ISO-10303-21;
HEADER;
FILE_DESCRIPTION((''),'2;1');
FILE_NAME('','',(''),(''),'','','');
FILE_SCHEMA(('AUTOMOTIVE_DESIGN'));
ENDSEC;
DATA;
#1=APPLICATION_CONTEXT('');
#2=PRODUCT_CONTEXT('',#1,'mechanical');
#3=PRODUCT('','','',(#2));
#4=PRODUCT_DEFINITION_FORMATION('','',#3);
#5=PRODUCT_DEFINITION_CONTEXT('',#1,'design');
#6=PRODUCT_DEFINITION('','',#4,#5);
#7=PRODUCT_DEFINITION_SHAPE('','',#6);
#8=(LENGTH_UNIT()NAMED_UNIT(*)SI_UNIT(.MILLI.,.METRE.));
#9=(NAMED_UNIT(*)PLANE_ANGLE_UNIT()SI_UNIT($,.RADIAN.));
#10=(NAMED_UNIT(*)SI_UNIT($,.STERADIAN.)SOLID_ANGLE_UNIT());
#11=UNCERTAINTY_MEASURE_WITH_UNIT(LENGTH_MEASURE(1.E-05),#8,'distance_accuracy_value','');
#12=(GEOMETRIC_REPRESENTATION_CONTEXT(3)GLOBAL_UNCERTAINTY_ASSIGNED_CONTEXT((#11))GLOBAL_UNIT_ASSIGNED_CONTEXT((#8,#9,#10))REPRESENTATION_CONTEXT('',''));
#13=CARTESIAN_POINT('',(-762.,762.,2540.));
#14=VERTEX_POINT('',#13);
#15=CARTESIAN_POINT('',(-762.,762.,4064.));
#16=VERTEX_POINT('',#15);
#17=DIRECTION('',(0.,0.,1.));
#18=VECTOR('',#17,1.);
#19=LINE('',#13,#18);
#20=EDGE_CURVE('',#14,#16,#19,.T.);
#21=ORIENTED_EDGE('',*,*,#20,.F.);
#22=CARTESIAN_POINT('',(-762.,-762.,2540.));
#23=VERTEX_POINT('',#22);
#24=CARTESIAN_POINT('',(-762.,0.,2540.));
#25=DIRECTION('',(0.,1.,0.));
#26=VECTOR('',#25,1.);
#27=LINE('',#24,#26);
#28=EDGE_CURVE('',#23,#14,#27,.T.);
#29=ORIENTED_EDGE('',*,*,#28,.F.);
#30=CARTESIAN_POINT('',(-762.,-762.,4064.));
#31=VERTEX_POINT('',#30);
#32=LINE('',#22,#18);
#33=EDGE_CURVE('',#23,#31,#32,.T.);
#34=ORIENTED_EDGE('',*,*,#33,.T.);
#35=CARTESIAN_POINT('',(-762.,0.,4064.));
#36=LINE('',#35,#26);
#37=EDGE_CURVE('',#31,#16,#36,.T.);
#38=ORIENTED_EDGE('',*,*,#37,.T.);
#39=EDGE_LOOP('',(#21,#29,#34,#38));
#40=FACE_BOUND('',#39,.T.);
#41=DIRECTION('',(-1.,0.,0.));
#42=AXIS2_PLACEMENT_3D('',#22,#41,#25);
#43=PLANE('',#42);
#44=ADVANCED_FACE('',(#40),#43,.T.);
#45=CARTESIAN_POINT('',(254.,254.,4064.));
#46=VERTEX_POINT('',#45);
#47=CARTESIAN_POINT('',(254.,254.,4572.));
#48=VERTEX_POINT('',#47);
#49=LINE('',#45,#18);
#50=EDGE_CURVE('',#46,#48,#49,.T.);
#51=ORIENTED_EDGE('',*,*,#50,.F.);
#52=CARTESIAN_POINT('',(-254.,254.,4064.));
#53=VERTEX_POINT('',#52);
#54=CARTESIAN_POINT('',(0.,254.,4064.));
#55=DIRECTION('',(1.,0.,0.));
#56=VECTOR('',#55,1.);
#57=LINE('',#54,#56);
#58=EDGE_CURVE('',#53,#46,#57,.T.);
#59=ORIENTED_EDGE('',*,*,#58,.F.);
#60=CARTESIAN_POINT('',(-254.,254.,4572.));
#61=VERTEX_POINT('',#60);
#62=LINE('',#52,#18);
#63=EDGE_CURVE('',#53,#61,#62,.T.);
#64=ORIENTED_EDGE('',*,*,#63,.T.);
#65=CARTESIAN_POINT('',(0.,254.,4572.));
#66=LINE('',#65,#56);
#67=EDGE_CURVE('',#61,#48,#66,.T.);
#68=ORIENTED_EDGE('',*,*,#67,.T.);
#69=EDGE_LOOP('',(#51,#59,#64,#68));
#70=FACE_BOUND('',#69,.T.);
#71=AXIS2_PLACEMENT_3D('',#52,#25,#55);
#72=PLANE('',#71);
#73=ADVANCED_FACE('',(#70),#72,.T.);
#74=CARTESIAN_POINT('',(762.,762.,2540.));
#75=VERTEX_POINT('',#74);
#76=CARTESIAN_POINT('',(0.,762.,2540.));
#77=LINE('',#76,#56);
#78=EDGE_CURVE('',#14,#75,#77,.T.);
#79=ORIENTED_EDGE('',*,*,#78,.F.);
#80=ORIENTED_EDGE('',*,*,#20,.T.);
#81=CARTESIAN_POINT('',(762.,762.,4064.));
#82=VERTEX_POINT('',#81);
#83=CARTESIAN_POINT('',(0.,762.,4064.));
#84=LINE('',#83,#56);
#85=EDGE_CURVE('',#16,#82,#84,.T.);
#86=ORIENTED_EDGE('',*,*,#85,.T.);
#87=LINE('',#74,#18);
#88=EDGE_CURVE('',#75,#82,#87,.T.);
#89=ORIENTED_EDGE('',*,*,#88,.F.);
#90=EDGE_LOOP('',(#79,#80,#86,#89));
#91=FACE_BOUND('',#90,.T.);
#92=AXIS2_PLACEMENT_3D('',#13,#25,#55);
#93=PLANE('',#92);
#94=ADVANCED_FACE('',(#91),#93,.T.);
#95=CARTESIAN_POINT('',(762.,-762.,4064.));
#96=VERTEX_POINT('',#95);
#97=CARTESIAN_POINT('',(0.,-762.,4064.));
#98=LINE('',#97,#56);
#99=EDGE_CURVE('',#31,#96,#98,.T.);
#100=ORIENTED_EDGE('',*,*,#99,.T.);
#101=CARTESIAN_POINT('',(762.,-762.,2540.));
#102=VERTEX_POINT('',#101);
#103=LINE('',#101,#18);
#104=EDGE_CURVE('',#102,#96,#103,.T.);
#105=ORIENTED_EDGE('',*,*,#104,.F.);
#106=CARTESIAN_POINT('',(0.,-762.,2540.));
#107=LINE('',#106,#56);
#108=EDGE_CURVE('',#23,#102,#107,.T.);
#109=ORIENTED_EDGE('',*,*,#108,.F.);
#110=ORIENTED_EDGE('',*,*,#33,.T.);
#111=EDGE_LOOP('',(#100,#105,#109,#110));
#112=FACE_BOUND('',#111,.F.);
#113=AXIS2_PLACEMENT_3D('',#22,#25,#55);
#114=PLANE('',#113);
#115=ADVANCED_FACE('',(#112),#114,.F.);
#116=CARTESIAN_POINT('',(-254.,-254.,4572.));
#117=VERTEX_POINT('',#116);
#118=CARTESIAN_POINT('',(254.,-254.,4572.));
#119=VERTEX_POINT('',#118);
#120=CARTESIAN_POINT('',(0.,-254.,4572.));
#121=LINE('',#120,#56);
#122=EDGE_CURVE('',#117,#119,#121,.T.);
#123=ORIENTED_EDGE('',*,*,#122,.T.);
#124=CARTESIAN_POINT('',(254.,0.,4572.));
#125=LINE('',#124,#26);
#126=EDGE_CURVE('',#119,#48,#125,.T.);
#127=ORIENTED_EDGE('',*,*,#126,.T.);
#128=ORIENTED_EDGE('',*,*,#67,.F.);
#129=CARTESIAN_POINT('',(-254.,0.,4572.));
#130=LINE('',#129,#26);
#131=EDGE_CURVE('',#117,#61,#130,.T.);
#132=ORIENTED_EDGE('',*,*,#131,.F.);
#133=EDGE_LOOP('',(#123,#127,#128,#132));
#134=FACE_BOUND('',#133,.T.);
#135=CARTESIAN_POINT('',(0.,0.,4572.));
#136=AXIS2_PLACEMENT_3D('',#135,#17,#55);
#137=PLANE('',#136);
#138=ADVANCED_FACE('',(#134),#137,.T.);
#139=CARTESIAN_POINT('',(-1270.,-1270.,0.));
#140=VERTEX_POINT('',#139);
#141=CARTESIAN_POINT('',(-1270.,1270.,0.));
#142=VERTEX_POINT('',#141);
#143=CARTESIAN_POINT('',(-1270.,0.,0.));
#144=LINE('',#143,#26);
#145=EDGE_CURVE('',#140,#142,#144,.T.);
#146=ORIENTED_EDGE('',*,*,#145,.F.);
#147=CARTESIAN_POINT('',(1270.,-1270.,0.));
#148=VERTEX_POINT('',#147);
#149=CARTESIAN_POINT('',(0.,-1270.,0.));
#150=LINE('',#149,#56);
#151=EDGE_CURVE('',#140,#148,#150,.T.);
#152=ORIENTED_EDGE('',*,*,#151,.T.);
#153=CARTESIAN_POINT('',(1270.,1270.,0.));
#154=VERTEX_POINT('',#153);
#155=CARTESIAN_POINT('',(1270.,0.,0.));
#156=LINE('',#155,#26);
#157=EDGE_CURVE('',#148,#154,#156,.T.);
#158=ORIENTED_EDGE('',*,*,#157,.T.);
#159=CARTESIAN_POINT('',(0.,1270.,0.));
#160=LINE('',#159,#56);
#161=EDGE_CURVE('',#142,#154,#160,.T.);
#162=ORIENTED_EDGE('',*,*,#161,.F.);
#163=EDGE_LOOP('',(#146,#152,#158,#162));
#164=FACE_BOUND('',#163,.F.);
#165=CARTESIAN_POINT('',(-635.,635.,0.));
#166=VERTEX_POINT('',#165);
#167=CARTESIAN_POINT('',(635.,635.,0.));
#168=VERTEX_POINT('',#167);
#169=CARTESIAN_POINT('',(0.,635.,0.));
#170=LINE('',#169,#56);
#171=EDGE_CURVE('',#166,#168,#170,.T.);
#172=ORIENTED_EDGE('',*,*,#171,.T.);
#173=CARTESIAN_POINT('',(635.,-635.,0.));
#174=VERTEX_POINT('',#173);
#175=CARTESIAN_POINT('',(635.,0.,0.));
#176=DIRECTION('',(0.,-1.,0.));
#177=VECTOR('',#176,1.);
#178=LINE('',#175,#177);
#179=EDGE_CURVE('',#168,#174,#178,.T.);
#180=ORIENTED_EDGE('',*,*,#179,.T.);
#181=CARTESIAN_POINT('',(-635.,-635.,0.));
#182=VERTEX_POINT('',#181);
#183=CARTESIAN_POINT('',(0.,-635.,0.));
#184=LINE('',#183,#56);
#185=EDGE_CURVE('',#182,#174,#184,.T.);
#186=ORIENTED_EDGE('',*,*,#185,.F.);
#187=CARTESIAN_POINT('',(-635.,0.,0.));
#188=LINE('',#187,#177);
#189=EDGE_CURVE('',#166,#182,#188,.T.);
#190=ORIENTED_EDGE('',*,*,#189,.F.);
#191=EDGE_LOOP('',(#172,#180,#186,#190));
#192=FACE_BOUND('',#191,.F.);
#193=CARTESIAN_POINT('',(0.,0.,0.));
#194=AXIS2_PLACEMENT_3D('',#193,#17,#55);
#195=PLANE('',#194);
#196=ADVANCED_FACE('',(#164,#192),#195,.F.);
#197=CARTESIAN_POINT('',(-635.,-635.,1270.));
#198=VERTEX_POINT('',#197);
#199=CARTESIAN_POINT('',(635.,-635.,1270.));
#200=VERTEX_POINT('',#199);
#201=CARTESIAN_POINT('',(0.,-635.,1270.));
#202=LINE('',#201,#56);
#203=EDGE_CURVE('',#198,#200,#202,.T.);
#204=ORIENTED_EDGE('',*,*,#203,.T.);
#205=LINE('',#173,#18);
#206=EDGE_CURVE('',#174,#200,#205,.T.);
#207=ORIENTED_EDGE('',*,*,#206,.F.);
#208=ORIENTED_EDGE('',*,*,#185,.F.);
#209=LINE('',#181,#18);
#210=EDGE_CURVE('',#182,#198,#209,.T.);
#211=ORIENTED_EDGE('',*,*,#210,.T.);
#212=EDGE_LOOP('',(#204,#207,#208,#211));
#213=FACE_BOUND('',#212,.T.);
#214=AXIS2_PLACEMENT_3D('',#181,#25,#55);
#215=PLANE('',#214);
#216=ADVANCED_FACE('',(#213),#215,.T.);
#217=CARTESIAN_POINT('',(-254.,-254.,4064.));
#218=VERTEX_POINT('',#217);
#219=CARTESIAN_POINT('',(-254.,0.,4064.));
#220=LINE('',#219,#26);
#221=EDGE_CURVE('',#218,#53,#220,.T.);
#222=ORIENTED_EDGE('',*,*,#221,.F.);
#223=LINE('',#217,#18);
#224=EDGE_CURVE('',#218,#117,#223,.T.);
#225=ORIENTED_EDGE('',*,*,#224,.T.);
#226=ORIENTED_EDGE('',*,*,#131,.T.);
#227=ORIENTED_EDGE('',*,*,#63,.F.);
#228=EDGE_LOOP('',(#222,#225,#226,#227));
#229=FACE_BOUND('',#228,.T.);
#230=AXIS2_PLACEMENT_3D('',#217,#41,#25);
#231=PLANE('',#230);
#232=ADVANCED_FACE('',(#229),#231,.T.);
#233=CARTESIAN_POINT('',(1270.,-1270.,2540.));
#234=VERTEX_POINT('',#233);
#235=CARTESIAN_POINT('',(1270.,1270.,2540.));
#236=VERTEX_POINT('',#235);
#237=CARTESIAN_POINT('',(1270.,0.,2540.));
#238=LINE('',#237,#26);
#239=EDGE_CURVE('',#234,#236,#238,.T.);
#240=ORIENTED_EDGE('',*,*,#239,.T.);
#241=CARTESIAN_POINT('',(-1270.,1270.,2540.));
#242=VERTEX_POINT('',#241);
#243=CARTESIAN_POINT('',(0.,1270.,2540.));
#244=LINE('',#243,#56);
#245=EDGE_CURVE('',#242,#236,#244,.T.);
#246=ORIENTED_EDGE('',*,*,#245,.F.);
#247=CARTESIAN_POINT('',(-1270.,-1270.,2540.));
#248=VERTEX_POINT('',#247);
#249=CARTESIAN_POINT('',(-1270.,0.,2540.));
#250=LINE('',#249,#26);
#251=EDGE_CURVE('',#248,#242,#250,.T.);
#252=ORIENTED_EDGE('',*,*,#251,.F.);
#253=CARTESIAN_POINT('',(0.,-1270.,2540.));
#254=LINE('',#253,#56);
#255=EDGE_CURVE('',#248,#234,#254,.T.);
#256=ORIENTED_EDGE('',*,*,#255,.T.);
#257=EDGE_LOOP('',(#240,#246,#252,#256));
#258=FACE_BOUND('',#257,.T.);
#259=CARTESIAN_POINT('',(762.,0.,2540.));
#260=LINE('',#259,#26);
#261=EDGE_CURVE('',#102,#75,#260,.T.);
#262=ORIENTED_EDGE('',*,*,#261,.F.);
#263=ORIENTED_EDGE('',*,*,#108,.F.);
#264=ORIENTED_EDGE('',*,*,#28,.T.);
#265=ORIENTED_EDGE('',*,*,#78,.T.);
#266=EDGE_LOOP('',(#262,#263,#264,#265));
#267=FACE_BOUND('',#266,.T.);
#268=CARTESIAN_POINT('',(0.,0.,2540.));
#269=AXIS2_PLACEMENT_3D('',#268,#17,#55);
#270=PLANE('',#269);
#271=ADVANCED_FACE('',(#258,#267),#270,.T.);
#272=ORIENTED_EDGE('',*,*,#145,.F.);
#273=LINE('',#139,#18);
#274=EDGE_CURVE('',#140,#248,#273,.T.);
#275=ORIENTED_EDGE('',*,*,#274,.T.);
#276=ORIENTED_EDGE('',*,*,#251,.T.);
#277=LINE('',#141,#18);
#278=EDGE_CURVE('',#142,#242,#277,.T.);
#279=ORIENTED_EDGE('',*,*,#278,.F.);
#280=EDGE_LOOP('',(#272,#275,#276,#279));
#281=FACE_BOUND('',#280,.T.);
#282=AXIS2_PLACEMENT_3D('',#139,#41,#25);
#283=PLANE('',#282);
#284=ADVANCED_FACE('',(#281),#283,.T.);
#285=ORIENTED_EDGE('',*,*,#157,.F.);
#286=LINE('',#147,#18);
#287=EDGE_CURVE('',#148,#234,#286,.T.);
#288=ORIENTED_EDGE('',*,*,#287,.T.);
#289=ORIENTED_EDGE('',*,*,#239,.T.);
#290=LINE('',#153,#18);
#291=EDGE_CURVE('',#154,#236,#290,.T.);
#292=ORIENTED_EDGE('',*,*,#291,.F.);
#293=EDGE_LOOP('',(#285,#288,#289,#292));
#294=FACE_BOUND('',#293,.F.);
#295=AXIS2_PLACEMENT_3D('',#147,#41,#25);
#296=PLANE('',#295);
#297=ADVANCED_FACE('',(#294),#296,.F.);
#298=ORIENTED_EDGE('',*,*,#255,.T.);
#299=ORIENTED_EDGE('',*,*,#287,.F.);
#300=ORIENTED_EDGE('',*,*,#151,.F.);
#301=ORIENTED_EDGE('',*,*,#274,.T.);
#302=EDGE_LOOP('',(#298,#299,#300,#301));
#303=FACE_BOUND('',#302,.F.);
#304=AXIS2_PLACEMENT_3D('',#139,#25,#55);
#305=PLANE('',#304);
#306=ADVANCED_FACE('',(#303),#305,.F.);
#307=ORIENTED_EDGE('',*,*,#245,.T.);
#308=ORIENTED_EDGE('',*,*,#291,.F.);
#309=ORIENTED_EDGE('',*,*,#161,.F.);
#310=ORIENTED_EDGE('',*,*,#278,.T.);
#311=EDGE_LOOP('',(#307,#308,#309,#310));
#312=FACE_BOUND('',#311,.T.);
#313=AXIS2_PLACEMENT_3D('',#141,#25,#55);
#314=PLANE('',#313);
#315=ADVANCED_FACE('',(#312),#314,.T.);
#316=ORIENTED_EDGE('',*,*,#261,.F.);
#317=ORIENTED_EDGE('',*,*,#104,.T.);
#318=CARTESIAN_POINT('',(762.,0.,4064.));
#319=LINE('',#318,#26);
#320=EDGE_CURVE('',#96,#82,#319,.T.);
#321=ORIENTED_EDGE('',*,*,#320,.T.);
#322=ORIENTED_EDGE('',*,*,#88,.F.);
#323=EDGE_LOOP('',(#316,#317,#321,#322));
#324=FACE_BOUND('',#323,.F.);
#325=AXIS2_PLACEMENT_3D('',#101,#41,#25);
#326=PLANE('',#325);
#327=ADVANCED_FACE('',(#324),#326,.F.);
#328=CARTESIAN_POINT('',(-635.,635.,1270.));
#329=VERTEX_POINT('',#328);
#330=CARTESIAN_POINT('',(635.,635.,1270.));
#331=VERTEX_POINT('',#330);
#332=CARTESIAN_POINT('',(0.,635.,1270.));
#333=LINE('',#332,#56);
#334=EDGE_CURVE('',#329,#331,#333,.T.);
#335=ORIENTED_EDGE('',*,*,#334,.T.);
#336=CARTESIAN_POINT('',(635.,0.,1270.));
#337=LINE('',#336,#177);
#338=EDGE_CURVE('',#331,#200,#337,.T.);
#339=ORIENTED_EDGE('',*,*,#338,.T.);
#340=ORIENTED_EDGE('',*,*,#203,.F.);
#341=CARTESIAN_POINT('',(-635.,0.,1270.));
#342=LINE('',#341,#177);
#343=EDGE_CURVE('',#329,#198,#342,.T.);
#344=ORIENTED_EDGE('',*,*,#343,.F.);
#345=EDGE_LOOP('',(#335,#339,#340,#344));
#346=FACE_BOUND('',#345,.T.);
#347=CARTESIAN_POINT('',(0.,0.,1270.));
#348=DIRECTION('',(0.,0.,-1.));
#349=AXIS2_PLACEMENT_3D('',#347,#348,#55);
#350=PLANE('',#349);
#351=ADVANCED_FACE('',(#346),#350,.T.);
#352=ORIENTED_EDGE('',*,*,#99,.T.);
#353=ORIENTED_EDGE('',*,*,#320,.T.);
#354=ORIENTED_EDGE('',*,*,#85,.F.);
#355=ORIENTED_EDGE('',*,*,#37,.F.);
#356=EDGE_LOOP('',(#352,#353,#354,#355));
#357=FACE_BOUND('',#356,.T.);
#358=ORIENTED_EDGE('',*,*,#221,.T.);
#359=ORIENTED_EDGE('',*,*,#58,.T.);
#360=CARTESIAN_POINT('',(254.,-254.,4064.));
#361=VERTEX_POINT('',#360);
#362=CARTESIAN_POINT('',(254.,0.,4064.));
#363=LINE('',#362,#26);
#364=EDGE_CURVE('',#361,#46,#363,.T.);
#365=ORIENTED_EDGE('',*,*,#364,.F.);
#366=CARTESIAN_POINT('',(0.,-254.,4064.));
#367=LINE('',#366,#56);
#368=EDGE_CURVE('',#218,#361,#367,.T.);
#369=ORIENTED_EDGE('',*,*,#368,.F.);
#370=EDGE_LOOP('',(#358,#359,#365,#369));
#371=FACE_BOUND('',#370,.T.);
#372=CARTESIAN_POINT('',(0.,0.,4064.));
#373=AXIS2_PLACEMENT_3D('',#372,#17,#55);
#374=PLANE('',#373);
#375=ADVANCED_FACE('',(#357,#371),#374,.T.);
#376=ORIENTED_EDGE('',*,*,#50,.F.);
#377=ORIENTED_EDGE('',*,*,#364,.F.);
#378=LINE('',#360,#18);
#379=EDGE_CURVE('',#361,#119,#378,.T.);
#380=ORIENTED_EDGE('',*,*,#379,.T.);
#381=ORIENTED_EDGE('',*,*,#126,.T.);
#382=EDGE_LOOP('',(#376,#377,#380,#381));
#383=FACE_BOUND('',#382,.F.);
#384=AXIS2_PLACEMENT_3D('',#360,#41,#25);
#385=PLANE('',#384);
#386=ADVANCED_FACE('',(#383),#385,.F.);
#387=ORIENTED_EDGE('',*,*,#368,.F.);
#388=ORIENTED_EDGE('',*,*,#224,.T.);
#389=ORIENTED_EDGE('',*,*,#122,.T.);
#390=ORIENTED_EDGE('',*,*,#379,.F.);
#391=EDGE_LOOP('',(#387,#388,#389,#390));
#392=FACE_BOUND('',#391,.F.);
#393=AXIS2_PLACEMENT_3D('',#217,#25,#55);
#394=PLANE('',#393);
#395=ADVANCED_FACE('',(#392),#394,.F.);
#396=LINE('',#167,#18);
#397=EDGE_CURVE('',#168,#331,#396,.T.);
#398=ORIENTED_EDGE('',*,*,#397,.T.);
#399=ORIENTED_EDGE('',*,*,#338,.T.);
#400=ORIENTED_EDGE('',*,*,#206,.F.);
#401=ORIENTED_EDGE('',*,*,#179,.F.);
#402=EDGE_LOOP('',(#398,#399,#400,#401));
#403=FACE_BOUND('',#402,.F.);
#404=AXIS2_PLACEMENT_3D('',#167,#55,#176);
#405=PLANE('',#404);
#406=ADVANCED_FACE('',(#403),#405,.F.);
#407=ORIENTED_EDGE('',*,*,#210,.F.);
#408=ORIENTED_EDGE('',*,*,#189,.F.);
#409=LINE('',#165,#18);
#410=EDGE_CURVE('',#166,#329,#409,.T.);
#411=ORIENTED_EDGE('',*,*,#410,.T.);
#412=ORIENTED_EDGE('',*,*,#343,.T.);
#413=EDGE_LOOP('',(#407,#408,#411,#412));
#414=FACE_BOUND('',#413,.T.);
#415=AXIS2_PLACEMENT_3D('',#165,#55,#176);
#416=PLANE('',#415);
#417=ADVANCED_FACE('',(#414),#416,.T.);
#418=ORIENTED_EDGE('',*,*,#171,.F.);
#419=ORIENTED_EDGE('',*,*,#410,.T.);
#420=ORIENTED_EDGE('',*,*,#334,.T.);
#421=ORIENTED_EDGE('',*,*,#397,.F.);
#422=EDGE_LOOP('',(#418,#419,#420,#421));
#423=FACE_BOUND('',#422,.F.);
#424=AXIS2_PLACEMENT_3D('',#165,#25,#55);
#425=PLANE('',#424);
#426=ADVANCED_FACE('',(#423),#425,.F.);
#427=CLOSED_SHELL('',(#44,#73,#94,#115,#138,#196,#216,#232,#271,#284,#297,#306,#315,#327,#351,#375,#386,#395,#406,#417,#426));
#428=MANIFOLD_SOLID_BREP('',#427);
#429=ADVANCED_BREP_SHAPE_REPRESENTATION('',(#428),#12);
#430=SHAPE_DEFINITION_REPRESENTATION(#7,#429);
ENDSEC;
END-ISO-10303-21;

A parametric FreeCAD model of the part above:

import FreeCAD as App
import Part
import Sketcher

V = App.Vector
Q = App.Units.Quantity

doc = App.newDocument("Part")
body = doc.addObject("PartDesign::Body", "Body")

sketch1 = doc.addObject("Sketcher::SketchObject", "Sketch")
body.addObject(sketch1)
sketch1.AttachmentSupport = (doc.XY_Plane, [""])
sketch1.MapMode = "FlatFace"
sketch1.addGeometry([
    Part.LineSegment(V(-1270, 1270, 0), V(-1270, -1270, 0)),
    Part.LineSegment(V(-1270, -1270, 0), V(1270, -1270, 0)),
    Part.LineSegment(V(1270, -1270, 0), V(1270, 1270, 0)),
    Part.LineSegment(V(1270, 1270, 0), V(-1270, 1270, 0)),
], False)
sketch1.addConstraint([
    Sketcher.Constraint("Coincident", 0, 2, 1, 1),
    Sketcher.Constraint("Coincident", 1, 2, 2, 1),
    Sketcher.Constraint("Coincident", 2, 2, 3, 1),
    Sketcher.Constraint("Coincident", 3, 2, 0, 1),
    Sketcher.Constraint("Vertical", 0),
    Sketcher.Constraint("Horizontal", 1),
    Sketcher.Constraint("Vertical", 2),
    Sketcher.Constraint("Horizontal", 3),
    Sketcher.Constraint("Symmetric", 0, 2, 2, 2, -1, 1),
    Sketcher.Constraint("Equal", 3, 0),
    Sketcher.Constraint("DistanceX", 1, 1, 1, 2, Q("100 in")),
])
pad1 = doc.addObject("PartDesign::Pad", "Pad")
body.addObject(pad1)
pad1.Profile = sketch1
pad1.Length = Q("100 in")

sketch2 = doc.addObject("Sketcher::SketchObject", "Sketch001")
body.addObject(sketch2)
sketch2.AttachmentSupport = (doc.XY_Plane, [""])
sketch2.MapMode = "FlatFace"
sketch2.AttachmentOffset = App.Placement(V(0, 0, 100 * 25.4), App.Rotation())
sketch2.addGeometry([
    Part.LineSegment(V(-762, 762, 0), V(-762, -762, 0)),
    Part.LineSegment(V(-762, -762, 0), V(762, -762, 0)),
    Part.LineSegment(V(762, -762, 0), V(762, 762, 0)),
    Part.LineSegment(V(762, 762, 0), V(-762, 762, 0)),
], False)
sketch2.addConstraint([
    Sketcher.Constraint("Coincident", 0, 2, 1, 1),
    Sketcher.Constraint("Coincident", 1, 2, 2, 1),
    Sketcher.Constraint("Coincident", 2, 2, 3, 1),
    Sketcher.Constraint("Coincident", 3, 2, 0, 1),
    Sketcher.Constraint("Vertical", 0),
    Sketcher.Constraint("Horizontal", 1),
    Sketcher.Constraint("Vertical", 2),
    Sketcher.Constraint("Horizontal", 3),
    Sketcher.Constraint("Symmetric", 0, 2, 2, 2, -1, 1),
    Sketcher.Constraint("Equal", 3, 0),
    Sketcher.Constraint("DistanceX", 1, 1, 1, 2, Q("60 in")),
])
pad2 = doc.addObject("PartDesign::Pad", "Pad001")
body.addObject(pad2)
pad2.Profile = sketch2
pad2.Length = Q("60 in")

sketch3 = doc.addObject("Sketcher::SketchObject", "Sketch002")
body.addObject(sketch3)
sketch3.AttachmentSupport = (doc.XY_Plane, [""])
sketch3.MapMode = "FlatFace"
sketch3.AttachmentOffset = App.Placement(V(0, 0, 160 * 25.4), App.Rotation())
sketch3.addGeometry([
    Part.LineSegment(V(-254, 254, 0), V(-254, -254, 0)),
    Part.LineSegment(V(-254, -254, 0), V(254, -254, 0)),
    Part.LineSegment(V(254, -254, 0), V(254, 254, 0)),
    Part.LineSegment(V(254, 254, 0), V(-254, 254, 0)),
], False)
sketch3.addConstraint([
    Sketcher.Constraint("Coincident", 0, 2, 1, 1),
    Sketcher.Constraint("Coincident", 1, 2, 2, 1),
    Sketcher.Constraint("Coincident", 2, 2, 3, 1),
    Sketcher.Constraint("Coincident", 3, 2, 0, 1),
    Sketcher.Constraint("Vertical", 0),
    Sketcher.Constraint("Horizontal", 1),
    Sketcher.Constraint("Vertical", 2),
    Sketcher.Constraint("Horizontal", 3),
    Sketcher.Constraint("Symmetric", 0, 2, 2, 2, -1, 1),
    Sketcher.Constraint("Equal", 3, 0),
    Sketcher.Constraint("DistanceX", 1, 1, 1, 2, Q("20 in")),
])
pad3 = doc.addObject("PartDesign::Pad", "Pad002")
body.addObject(pad3)
pad3.Profile = sketch3
pad3.Length = Q("20 in")

sketch4 = doc.addObject("Sketcher::SketchObject", "Sketch003")
body.addObject(sketch4)
sketch4.AttachmentSupport = (doc.XY_Plane, [""])
sketch4.MapMode = "FlatFace"
sketch4.addGeometry([
    Part.LineSegment(V(-635, -635, 0), V(-635, 635, 0)),
    Part.LineSegment(V(-635, 635, 0), V(635, 635, 0)),
    Part.LineSegment(V(635, 635, 0), V(635, -635, 0)),
    Part.LineSegment(V(635, -635, 0), V(-635, -635, 0)),
], False)
sketch4.addConstraint([
    Sketcher.Constraint("Coincident", 0, 2, 1, 1),
    Sketcher.Constraint("Coincident", 1, 2, 2, 1),
    Sketcher.Constraint("Coincident", 2, 2, 3, 1),
    Sketcher.Constraint("Coincident", 3, 2, 0, 1),
    Sketcher.Constraint("Vertical", 0),
    Sketcher.Constraint("Horizontal", 1),
    Sketcher.Constraint("Vertical", 2),
    Sketcher.Constraint("Horizontal", 3),
    Sketcher.Constraint("Symmetric", 0, 2, 2, 2, -1, 1),
    Sketcher.Constraint("Equal", 3, 0),
    Sketcher.Constraint("DistanceX", 1, 1, 1, 2, Q("50 in")),
])
pocket1 = doc.addObject("PartDesign::Pocket", "Pocket")
body.addObject(pocket1)
pocket1.Profile = sketch4
pocket1.Length = Q("50 in")
pocket1.Reversed = True

doc.recompute()
